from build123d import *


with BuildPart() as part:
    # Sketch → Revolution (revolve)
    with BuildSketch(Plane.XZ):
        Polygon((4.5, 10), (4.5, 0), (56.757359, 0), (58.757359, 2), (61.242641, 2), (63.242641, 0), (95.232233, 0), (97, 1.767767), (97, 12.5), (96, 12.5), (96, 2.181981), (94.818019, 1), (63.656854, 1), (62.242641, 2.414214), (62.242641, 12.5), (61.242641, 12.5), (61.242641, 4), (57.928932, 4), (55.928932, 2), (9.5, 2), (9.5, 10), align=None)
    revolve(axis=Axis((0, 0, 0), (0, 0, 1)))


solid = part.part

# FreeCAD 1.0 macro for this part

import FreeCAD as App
import Part
import Sketcher
from FreeCAD import Vector
Q = App.Units.Quantity

doc = App.newDocument("Part")
body = doc.addObject("PartDesign::Body", "Body")

# Sketch on XZ plane
sketch1 = body.newObject("Sketcher::SketchObject", "Sketch")
sketch1.AttachmentSupport = (doc.getObject("XZ_Plane"), [""])
sketch1.MapMode = "FlatFace"
sketch1.addGeometry([
    Part.LineSegment(Vector(4.5, 10, 0), Vector(4.5, 0, 0)),  # 0
    Part.LineSegment(Vector(4.5, 0, 0), Vector(56.8, 0, 0)),  # 1
    Part.LineSegment(Vector(56.8, 0, 0), Vector(58.8, 2, 0)),  # 2
    Part.LineSegment(Vector(58.8, 2, 0), Vector(61.2, 2, 0)),  # 3
    Part.LineSegment(Vector(61.2, 2, 0), Vector(63.2, 0, 0)),  # 4
    Part.LineSegment(Vector(63.2, 0, 0), Vector(95.2, 0, 0)),  # 5
    Part.LineSegment(Vector(95.2, 0, 0), Vector(97, 1.8, 0)),  # 6
    Part.LineSegment(Vector(97, 1.8, 0), Vector(97, 12.5, 0)),  # 7
    Part.LineSegment(Vector(97, 12.5, 0), Vector(96, 12.5, 0)),  # 8
    Part.LineSegment(Vector(96, 12.5, 0), Vector(96, 2.2, 0)),  # 9
    Part.LineSegment(Vector(96, 2.2, 0), Vector(94.8, 1, 0)),  # 10
    Part.LineSegment(Vector(94.8, 1, 0), Vector(63.7, 1, 0)),  # 11
    Part.LineSegment(Vector(63.7, 1, 0), Vector(62.2, 2.4, 0)),  # 12
    Part.LineSegment(Vector(62.2, 2.4, 0), Vector(62.2, 12.5, 0)),  # 13
    Part.LineSegment(Vector(62.2, 12.5, 0), Vector(61.2, 12.5, 0)),  # 14
    Part.LineSegment(Vector(61.2, 12.5, 0), Vector(61.2, 4, 0)),  # 15
    Part.LineSegment(Vector(61.2, 4, 0), Vector(57.9, 4, 0)),  # 16
    Part.LineSegment(Vector(57.9, 4, 0), Vector(55.9, 2, 0)),  # 17
    Part.LineSegment(Vector(55.9, 2, 0), Vector(9.5, 2, 0)),  # 18
    Part.LineSegment(Vector(9.5, 2, 0), Vector(9.5, 10, 0)),  # 19
    Part.LineSegment(Vector(9.5, 10, 0), Vector(4.5, 10, 0)),  # 20
], False)
sketch1.addConstraint([
    Sketcher.Constraint("Coincident", 0, 2, 1, 1),
    Sketcher.Constraint("Coincident", 1, 2, 2, 1),
    Sketcher.Constraint("Coincident", 2, 2, 3, 1),
    Sketcher.Constraint("Coincident", 3, 2, 4, 1),
    Sketcher.Constraint("Coincident", 4, 2, 5, 1),
    Sketcher.Constraint("Coincident", 5, 2, 6, 1),
    Sketcher.Constraint("Coincident", 6, 2, 7, 1),
    Sketcher.Constraint("Coincident", 7, 2, 8, 1),
    Sketcher.Constraint("Coincident", 8, 2, 9, 1),
    Sketcher.Constraint("Coincident", 9, 2, 10, 1),
    Sketcher.Constraint("Coincident", 10, 2, 11, 1),
    Sketcher.Constraint("Coincident", 11, 2, 12, 1),
    Sketcher.Constraint("Coincident", 12, 2, 13, 1),
    Sketcher.Constraint("Coincident", 13, 2, 14, 1),
    Sketcher.Constraint("Coincident", 14, 2, 15, 1),
    Sketcher.Constraint("Coincident", 15, 2, 16, 1),
    Sketcher.Constraint("Coincident", 16, 2, 17, 1),
    Sketcher.Constraint("Coincident", 17, 2, 18, 1),
    Sketcher.Constraint("Coincident", 18, 2, 19, 1),
    Sketcher.Constraint("Coincident", 19, 2, 20, 1),
    Sketcher.Constraint("Coincident", 20, 2, 0, 1),
    Sketcher.Constraint("Vertical", 0),
    Sketcher.Constraint("Horizontal", 1),
    Sketcher.Constraint("Horizontal", 3),
    Sketcher.Constraint("Horizontal", 5),
    Sketcher.Constraint("Vertical", 7),
    Sketcher.Constraint("Horizontal", 8),
    Sketcher.Constraint("Vertical", 9),
    Sketcher.Constraint("Horizontal", 11),
    Sketcher.Constraint("Vertical", 13),
    Sketcher.Constraint("Horizontal", 14),
    Sketcher.Constraint("Vertical", 15),
    Sketcher.Constraint("Horizontal", 16),
    Sketcher.Constraint("Horizontal", 18),
    Sketcher.Constraint("Vertical", 19),
    Sketcher.Constraint("Horizontal", 20),
    Sketcher.Constraint("PointOnObject", 0, 2, -1),
    Sketcher.Constraint("PointOnObject", 4, 2, -1),
    Sketcher.Constraint("Perpendicular", 2, 4),
    Sketcher.Constraint("Perpendicular", 4, 6),
    Sketcher.Constraint("Parallel", 6, 10),
    Sketcher.Constraint("Perpendicular", 10, 12),
    Sketcher.Constraint("Perpendicular", 12, 17),
    Sketcher.Constraint("Horizontal", 8, 2, 13, 2),
    Sketcher.Constraint("Horizontal", 3, 2, 17, 2),
    Sketcher.Constraint("Vertical", 3, 2, 14, 2),
    Sketcher.Constraint("Equal", 8, 14),
    Sketcher.Constraint("Equal", 2, 4),
    Sketcher.Constraint("Equal", 4, 17),
    Sketcher.Constraint("DistanceX", 8, 2, 8, 1, Q("1 mm")),
    Sketcher.Constraint("DistanceX", 20, 2, 20, 1, Q("5 mm")),
    Sketcher.Constraint("DistanceY", 0, 2, 0, 1, Q("10 mm")),
    Sketcher.Constraint("DistanceY", 19, 1, 19, 2, Q("8 mm")),
    Sketcher.Constraint("Distance", 12, Q("2 mm")),
    Sketcher.Constraint("DistanceY", 15, 2, 15, 1, Q("8.5 mm")),
    Sketcher.Constraint("DistanceX", -1, 1, 6, 2, Q("97 mm")),
    Sketcher.Constraint("DistanceY", -1, 1, 10, 2, Q("1 mm")),
    Sketcher.Constraint("Distance", 6, Q("2.5 mm")),
    Sketcher.Constraint("DistanceX", -1, 1, 0, 2, Q("4.5 mm")),
    Sketcher.Constraint("DistanceX", 1, 1, 1, 2, Q("52.257359 mm")),
    Sketcher.Constraint("DistanceX", 3, 1, 3, 2, Q("2.485282 mm")),
    Sketcher.Constraint("DistanceX", 16, 2, 16, 1, Q("3.313709 mm")),
    Sketcher.Constraint("DistanceY", 9, 2, 9, 1, Q("10.318019 mm")),
])
revolution = body.newObject("PartDesign::Revolution", "Revolution")
revolution.Profile = sketch1
revolution.ReferenceAxis = (sketch1, ["V_Axis"])
revolution.Angle = 360

doc.recompute()
